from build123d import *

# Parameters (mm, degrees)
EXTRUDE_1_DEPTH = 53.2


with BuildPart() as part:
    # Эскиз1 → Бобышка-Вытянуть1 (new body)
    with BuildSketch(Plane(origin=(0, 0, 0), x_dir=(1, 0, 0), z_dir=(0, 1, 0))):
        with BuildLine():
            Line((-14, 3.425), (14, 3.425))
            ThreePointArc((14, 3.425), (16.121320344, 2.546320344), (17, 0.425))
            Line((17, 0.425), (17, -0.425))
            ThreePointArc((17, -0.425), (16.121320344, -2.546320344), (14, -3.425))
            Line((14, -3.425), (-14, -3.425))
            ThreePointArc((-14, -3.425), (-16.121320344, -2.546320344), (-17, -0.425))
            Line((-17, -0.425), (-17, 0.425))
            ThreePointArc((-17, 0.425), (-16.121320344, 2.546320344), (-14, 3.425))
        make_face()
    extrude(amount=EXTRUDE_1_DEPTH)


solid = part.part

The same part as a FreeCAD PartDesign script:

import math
import FreeCAD as App
import Part
import Sketcher

doc = App.newDocument("Part")
body = doc.addObject("PartDesign::Body", "Body")

sketch1 = doc.addObject("Sketcher::SketchObject", "Sketch")
body.addObject(sketch1)
sketch1.AttachmentSupport = (doc.XZ_Plane, [""])
sketch1.MapMode = "FlatFace"
sketch1.addGeometry([
    Part.LineSegment(App.Vector(14, -3.4, 0), App.Vector(-14, -3.4, 0)),
    Part.ArcOfCircle(Part.Circle(App.Vector(-14, -0.4, 0), App.Vector(0, 0, 1), 3), math.radians(180), math.radians(270)),
    Part.LineSegment(App.Vector(-17, -0.4, 0), App.Vector(-17, 0.4, 0)),
    Part.ArcOfCircle(Part.Circle(App.Vector(-14, 0.4, 0), App.Vector(0, 0, 1), 3), math.radians(90), math.radians(180)),
    Part.LineSegment(App.Vector(-14, 3.4, 0), App.Vector(14, 3.4, 0)),
    Part.ArcOfCircle(Part.Circle(App.Vector(14, 0.4, 0), App.Vector(0, 0, 1), 3), math.radians(0), math.radians(90)),
    Part.LineSegment(App.Vector(17, 0.4, 0), App.Vector(17, -0.4, 0)),
    Part.ArcOfCircle(Part.Circle(App.Vector(14, -0.4, 0), App.Vector(0, 0, 1), 3), math.radians(-90), math.radians(0)),
], False)
sketch1.addConstraint([
    Sketcher.Constraint("Tangent", 0, 2, 1, 2),
    Sketcher.Constraint("Tangent", 1, 1, 2, 1),
    Sketcher.Constraint("Tangent", 2, 2, 3, 2),
    Sketcher.Constraint("Tangent", 3, 1, 4, 1),
    Sketcher.Constraint("Tangent", 4, 2, 5, 2),
    Sketcher.Constraint("Tangent", 5, 1, 6, 1),
    Sketcher.Constraint("Tangent", 6, 2, 7, 2),
    Sketcher.Constraint("Tangent", 7, 1, 0, 1),
    Sketcher.Constraint("Horizontal", 0),
    Sketcher.Constraint("Vertical", 2),
    Sketcher.Constraint("Horizontal", 4),
    Sketcher.Constraint("Vertical", 6),
    Sketcher.Constraint("Equal", 1, 3),
    Sketcher.Constraint("Equal", 3, 5),
    Sketcher.Constraint("Equal", 5, 7),
    Sketcher.Constraint("Symmetric", 1, 3, 5, 3, -1, 1),
    Sketcher.Constraint("Radius", 1, 3.0),
    Sketcher.Constraint("DistanceX", 0, 2, 0, 1, 28.0),
    Sketcher.Constraint("DistanceY", 2, 1, 2, 2, 0.85),
])
pad1 = doc.addObject("PartDesign::Pad", "Pad")
body.addObject(pad1)
pad1.Profile = sketch1
pad1.Length = 53.2
pad1.Reversed = True

doc.recompute()
